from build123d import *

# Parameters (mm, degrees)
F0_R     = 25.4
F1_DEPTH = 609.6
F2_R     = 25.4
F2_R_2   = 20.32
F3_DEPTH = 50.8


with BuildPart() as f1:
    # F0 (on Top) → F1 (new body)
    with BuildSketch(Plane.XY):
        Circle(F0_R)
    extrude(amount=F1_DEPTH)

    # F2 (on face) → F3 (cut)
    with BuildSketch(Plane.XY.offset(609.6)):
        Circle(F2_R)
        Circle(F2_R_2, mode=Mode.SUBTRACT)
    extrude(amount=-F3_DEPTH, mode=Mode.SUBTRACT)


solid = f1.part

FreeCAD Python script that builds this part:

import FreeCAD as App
import Part
import Sketcher

V = App.Vector
Q = App.Units.Quantity

doc = App.newDocument("Part")
body = doc.addObject("PartDesign::Body", "Body")

# Sketch on XY plane
sketch1 = doc.addObject("Sketcher::SketchObject", "Sketch")
body.addObject(sketch1)
sketch1.AttachmentSupport = (doc.XY_Plane, [""])
sketch1.MapMode = "FlatFace"
sketch1.addGeometry(Part.Circle(V(0, 0, 0), V(0, 0, 1), 25), False)
sketch1.addConstraint(Sketcher.Constraint("Coincident", 0, 3, -1, 1))
sketch1.addConstraint(Sketcher.Constraint("Diameter", 0, Q("2 in")))
pad1 = doc.addObject("PartDesign::Pad", "Pad")
body.addObject(pad1)
pad1.Profile = sketch1
pad1.Length = Q("24 in")

# Sketch on XY plane
sketch2 = doc.addObject("Sketcher::SketchObject", "Sketch001")
body.addObject(sketch2)
sketch2.AttachmentSupport = (doc.XY_Plane, [""])
sketch2.MapMode = "FlatFace"
sketch2.AttachmentOffset = App.Placement(V(0, 0, 24 * 25.4), App.Rotation())
sketch2.addGeometry(Part.Circle(V(0, 0, 0), V(0, 0, 1), 25), False)
sketch2.addGeometry(Part.Circle(V(0, 0, 0), V(0, 0, 1), 20), False)
sketch2.addConstraint(Sketcher.Constraint("Coincident", 0, 3, -1, 1))
sketch2.addConstraint(Sketcher.Constraint("Coincident", 1, 3, -1, 1))
sketch2.addConstraint(Sketcher.Constraint("Diameter", 0, Q("2 in")))
sketch2.addConstraint(Sketcher.Constraint("Diameter", 1, Q("1.6 in")))
pocket1 = doc.addObject("PartDesign::Pocket", "Pocket")
body.addObject(pocket1)
pocket1.Profile = sketch2
pocket1.Length = Q("2 in")

doc.recompute()
